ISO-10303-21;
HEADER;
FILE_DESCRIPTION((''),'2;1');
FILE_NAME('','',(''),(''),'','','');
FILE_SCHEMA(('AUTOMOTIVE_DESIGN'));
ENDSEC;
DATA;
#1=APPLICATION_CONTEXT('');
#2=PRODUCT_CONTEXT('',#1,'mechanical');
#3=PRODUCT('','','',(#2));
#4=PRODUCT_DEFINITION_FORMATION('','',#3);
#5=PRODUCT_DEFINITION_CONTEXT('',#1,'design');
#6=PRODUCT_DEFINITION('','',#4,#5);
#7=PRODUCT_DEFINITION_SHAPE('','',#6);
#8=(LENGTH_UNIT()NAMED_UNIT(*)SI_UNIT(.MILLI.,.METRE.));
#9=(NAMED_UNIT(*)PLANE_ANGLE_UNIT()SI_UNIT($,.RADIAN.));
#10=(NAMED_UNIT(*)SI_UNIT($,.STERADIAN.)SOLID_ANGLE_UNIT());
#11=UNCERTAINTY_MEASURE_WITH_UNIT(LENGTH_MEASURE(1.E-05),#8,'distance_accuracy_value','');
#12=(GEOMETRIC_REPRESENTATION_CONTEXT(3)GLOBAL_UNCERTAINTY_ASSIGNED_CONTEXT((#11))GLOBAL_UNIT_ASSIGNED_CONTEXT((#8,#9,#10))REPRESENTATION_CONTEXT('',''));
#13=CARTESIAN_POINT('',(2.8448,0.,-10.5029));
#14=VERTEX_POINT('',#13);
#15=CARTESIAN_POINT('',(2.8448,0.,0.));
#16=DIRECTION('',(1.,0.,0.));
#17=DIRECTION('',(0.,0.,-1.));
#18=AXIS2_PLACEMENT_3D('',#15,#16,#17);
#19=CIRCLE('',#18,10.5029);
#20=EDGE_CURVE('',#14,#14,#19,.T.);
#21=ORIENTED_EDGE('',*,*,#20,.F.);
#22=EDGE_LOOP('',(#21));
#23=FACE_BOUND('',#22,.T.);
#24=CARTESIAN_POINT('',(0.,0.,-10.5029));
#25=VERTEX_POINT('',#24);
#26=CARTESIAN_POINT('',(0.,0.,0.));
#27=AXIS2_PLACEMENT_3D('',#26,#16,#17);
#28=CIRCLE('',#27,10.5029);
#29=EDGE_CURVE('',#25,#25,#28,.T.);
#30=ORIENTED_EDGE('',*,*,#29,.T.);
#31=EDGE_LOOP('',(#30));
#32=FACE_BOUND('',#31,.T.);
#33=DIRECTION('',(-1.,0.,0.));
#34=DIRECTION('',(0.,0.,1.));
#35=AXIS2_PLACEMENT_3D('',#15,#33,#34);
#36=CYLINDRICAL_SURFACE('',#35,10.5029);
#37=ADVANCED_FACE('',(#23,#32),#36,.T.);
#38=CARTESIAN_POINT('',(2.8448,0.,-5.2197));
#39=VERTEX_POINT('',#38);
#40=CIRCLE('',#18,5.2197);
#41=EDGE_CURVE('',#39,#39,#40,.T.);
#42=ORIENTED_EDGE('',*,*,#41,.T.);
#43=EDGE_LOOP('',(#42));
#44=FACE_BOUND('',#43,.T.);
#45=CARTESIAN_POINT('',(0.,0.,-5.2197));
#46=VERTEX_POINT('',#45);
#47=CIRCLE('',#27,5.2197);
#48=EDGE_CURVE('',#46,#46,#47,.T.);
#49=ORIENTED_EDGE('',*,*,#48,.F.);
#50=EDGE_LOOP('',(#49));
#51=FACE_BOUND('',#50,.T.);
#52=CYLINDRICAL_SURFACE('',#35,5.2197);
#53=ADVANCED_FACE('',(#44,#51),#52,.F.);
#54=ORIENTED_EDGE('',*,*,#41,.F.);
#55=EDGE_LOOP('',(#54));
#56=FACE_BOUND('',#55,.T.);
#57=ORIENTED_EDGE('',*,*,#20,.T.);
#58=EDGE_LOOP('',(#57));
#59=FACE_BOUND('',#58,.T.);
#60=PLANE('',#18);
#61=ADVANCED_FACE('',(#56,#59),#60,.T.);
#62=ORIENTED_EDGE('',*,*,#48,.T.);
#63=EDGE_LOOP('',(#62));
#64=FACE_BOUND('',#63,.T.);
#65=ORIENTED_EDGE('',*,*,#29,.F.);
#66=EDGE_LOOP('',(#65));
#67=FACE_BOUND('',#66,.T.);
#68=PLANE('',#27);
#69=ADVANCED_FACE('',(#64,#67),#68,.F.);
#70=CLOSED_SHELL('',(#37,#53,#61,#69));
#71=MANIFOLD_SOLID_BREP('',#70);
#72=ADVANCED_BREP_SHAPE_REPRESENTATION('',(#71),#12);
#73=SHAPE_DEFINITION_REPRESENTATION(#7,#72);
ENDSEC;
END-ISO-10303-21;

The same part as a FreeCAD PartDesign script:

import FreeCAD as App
import Part
import Sketcher
Q = App.Units.Quantity

doc = App.newDocument("Part")
params = doc.addObject("Spreadsheet::Sheet", "Params")
for row, (alias, value) in enumerate([
    ("sketch1_diameter", "0.827 in"),
    ("sketch1_diameter2", "0.411 in"),
    ("pad1_length", "0.112 in"),
], start=1):
    params.set(f"A{row}", alias)
    params.set(f"B{row}", "=" + value)
    params.setAlias(f"B{row}", alias)

body = doc.addObject("PartDesign::Body", "Body")

sketch1 = doc.addObject("Sketcher::SketchObject", "Sketch")
body.addObject(sketch1)
sketch1.AttachmentSupport = (doc.YZ_Plane, [""])
sketch1.MapMode = "FlatFace"
sketch1.addGeometry(Part.Circle(App.Vector(0, 0, 0), App.Vector(0, 0, 1), 11), False)
sketch1.addGeometry(Part.Circle(App.Vector(0, 0, 0), App.Vector(0, 0, 1), 5), False)
sketch1.addConstraint(Sketcher.Constraint("Coincident", 0, 3, -1, 1))
sketch1.addConstraint(Sketcher.Constraint("Coincident", 1, 3, -1, 1))
sketch1.addConstraint(Sketcher.Constraint("Diameter", 0, Q("0.827 in")))
sketch1.addConstraint(Sketcher.Constraint("Diameter", 1, Q("0.411 in")))
sketch1.setExpression("Constraints[2]", "Params.sketch1_diameter")
sketch1.setExpression("Constraints[3]", "Params.sketch1_diameter2")
pad1 = doc.addObject("PartDesign::Pad", "Pad")
body.addObject(pad1)
pad1.Profile = sketch1
pad1.setExpression("Length", "Params.pad1_length")

doc.recompute()
